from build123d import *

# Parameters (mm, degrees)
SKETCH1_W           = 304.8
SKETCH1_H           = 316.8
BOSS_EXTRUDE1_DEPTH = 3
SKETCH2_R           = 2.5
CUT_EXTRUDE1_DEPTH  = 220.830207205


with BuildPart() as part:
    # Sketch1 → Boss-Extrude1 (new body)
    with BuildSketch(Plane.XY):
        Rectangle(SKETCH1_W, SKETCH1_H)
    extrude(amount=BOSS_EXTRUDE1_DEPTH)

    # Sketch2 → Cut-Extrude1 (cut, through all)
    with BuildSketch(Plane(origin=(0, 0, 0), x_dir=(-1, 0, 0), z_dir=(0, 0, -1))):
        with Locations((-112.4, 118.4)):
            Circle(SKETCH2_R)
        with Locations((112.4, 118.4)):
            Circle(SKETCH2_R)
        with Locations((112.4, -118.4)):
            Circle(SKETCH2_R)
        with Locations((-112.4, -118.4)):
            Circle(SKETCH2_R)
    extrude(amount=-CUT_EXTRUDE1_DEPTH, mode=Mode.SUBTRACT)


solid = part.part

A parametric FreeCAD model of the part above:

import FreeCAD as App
import Part
import Sketcher

V = App.Vector

doc = App.newDocument("Part")
body = doc.addObject("PartDesign::Body", "Body")

sketch1 = body.newObject("Sketcher::SketchObject", "Sketch")
sketch1.AttachmentSupport = (doc.getObject("XY_Plane"), [""])
sketch1.MapMode = "FlatFace"
sketch1.addGeometry(Part.LineSegment(V(-152, 158, 0), V(-152, -158, 0)), False)
sketch1.addGeometry(Part.LineSegment(V(-152, -158, 0), V(152, -158, 0)), False)
sketch1.addGeometry(Part.LineSegment(V(152, -158, 0), V(152, 158, 0)), False)
sketch1.addGeometry(Part.LineSegment(V(152, 158, 0), V(-152, 158, 0)), False)
sketch1.addConstraint(Sketcher.Constraint("Coincident", 0, 2, 1, 1))
sketch1.addConstraint(Sketcher.Constraint("Coincident", 1, 2, 2, 1))
sketch1.addConstraint(Sketcher.Constraint("Coincident", 2, 2, 3, 1))
sketch1.addConstraint(Sketcher.Constraint("Coincident", 3, 2, 0, 1))
sketch1.addConstraint(Sketcher.Constraint("Vertical", 0))
sketch1.addConstraint(Sketcher.Constraint("Horizontal", 1))
sketch1.addConstraint(Sketcher.Constraint("Vertical", 2))
sketch1.addConstraint(Sketcher.Constraint("Horizontal", 3))
sketch1.addConstraint(Sketcher.Constraint("Symmetric", 0, 2, 2, 2, -1, 1))
sketch1.addConstraint(Sketcher.Constraint("DistanceX", 1, 1, 1, 2, 304.8))
sketch1.addConstraint(Sketcher.Constraint("DistanceY", 0, 2, 0, 1, 316.8))
pad1 = body.newObject("PartDesign::Pad", "Pad")
pad1.Profile = sketch1
pad1.Length = 3

sketch2 = body.newObject("Sketcher::SketchObject", "Sketch001")
sketch2.AttachmentSupport = (doc.getObject("XY_Plane"), [""])
sketch2.MapMode = "FlatFace"
sketch2.addGeometry(Part.Circle(V(112.4, 118.4, 0), V(0, 0, 1), 2.5), False)
sketch2.addGeometry(Part.Circle(V(-112.4, 118.4, 0), V(0, 0, 1), 2.5), False)
sketch2.addGeometry(Part.Circle(V(-112.4, -118.4, 0), V(0, 0, 1), 2.5), False)
sketch2.addGeometry(Part.Circle(V(112.4, -118.4, 0), V(0, 0, 1), 2.5), False)
sketch2.addConstraint(Sketcher.Constraint("Equal", 0, 1))
sketch2.addConstraint(Sketcher.Constraint("Equal", 1, 2))
sketch2.addConstraint(Sketcher.Constraint("Equal", 2, 3))
sketch2.addConstraint(Sketcher.Constraint("Symmetric", 0, 3, 2, 3, -1, 1))
sketch2.addConstraint(Sketcher.Constraint("Symmetric", 1, 3, 3, 3, -1, 1))
sketch2.addConstraint(Sketcher.Constraint("Symmetric", 0, 3, 1, 3, -2))
sketch2.addConstraint(Sketcher.Constraint("Diameter", 0, 5.0))
sketch2.addConstraint(Sketcher.Constraint("DistanceX", -1, 1, 0, 3, 112.4))
sketch2.addConstraint(Sketcher.Constraint("DistanceY", -1, 1, 0, 3, 118.4))
pocket1 = body.newObject("PartDesign::Pocket", "Pocket")
pocket1.Profile = sketch2
pocket1.Type = "ThroughAll"
pocket1.Reversed = True

doc.recompute()
